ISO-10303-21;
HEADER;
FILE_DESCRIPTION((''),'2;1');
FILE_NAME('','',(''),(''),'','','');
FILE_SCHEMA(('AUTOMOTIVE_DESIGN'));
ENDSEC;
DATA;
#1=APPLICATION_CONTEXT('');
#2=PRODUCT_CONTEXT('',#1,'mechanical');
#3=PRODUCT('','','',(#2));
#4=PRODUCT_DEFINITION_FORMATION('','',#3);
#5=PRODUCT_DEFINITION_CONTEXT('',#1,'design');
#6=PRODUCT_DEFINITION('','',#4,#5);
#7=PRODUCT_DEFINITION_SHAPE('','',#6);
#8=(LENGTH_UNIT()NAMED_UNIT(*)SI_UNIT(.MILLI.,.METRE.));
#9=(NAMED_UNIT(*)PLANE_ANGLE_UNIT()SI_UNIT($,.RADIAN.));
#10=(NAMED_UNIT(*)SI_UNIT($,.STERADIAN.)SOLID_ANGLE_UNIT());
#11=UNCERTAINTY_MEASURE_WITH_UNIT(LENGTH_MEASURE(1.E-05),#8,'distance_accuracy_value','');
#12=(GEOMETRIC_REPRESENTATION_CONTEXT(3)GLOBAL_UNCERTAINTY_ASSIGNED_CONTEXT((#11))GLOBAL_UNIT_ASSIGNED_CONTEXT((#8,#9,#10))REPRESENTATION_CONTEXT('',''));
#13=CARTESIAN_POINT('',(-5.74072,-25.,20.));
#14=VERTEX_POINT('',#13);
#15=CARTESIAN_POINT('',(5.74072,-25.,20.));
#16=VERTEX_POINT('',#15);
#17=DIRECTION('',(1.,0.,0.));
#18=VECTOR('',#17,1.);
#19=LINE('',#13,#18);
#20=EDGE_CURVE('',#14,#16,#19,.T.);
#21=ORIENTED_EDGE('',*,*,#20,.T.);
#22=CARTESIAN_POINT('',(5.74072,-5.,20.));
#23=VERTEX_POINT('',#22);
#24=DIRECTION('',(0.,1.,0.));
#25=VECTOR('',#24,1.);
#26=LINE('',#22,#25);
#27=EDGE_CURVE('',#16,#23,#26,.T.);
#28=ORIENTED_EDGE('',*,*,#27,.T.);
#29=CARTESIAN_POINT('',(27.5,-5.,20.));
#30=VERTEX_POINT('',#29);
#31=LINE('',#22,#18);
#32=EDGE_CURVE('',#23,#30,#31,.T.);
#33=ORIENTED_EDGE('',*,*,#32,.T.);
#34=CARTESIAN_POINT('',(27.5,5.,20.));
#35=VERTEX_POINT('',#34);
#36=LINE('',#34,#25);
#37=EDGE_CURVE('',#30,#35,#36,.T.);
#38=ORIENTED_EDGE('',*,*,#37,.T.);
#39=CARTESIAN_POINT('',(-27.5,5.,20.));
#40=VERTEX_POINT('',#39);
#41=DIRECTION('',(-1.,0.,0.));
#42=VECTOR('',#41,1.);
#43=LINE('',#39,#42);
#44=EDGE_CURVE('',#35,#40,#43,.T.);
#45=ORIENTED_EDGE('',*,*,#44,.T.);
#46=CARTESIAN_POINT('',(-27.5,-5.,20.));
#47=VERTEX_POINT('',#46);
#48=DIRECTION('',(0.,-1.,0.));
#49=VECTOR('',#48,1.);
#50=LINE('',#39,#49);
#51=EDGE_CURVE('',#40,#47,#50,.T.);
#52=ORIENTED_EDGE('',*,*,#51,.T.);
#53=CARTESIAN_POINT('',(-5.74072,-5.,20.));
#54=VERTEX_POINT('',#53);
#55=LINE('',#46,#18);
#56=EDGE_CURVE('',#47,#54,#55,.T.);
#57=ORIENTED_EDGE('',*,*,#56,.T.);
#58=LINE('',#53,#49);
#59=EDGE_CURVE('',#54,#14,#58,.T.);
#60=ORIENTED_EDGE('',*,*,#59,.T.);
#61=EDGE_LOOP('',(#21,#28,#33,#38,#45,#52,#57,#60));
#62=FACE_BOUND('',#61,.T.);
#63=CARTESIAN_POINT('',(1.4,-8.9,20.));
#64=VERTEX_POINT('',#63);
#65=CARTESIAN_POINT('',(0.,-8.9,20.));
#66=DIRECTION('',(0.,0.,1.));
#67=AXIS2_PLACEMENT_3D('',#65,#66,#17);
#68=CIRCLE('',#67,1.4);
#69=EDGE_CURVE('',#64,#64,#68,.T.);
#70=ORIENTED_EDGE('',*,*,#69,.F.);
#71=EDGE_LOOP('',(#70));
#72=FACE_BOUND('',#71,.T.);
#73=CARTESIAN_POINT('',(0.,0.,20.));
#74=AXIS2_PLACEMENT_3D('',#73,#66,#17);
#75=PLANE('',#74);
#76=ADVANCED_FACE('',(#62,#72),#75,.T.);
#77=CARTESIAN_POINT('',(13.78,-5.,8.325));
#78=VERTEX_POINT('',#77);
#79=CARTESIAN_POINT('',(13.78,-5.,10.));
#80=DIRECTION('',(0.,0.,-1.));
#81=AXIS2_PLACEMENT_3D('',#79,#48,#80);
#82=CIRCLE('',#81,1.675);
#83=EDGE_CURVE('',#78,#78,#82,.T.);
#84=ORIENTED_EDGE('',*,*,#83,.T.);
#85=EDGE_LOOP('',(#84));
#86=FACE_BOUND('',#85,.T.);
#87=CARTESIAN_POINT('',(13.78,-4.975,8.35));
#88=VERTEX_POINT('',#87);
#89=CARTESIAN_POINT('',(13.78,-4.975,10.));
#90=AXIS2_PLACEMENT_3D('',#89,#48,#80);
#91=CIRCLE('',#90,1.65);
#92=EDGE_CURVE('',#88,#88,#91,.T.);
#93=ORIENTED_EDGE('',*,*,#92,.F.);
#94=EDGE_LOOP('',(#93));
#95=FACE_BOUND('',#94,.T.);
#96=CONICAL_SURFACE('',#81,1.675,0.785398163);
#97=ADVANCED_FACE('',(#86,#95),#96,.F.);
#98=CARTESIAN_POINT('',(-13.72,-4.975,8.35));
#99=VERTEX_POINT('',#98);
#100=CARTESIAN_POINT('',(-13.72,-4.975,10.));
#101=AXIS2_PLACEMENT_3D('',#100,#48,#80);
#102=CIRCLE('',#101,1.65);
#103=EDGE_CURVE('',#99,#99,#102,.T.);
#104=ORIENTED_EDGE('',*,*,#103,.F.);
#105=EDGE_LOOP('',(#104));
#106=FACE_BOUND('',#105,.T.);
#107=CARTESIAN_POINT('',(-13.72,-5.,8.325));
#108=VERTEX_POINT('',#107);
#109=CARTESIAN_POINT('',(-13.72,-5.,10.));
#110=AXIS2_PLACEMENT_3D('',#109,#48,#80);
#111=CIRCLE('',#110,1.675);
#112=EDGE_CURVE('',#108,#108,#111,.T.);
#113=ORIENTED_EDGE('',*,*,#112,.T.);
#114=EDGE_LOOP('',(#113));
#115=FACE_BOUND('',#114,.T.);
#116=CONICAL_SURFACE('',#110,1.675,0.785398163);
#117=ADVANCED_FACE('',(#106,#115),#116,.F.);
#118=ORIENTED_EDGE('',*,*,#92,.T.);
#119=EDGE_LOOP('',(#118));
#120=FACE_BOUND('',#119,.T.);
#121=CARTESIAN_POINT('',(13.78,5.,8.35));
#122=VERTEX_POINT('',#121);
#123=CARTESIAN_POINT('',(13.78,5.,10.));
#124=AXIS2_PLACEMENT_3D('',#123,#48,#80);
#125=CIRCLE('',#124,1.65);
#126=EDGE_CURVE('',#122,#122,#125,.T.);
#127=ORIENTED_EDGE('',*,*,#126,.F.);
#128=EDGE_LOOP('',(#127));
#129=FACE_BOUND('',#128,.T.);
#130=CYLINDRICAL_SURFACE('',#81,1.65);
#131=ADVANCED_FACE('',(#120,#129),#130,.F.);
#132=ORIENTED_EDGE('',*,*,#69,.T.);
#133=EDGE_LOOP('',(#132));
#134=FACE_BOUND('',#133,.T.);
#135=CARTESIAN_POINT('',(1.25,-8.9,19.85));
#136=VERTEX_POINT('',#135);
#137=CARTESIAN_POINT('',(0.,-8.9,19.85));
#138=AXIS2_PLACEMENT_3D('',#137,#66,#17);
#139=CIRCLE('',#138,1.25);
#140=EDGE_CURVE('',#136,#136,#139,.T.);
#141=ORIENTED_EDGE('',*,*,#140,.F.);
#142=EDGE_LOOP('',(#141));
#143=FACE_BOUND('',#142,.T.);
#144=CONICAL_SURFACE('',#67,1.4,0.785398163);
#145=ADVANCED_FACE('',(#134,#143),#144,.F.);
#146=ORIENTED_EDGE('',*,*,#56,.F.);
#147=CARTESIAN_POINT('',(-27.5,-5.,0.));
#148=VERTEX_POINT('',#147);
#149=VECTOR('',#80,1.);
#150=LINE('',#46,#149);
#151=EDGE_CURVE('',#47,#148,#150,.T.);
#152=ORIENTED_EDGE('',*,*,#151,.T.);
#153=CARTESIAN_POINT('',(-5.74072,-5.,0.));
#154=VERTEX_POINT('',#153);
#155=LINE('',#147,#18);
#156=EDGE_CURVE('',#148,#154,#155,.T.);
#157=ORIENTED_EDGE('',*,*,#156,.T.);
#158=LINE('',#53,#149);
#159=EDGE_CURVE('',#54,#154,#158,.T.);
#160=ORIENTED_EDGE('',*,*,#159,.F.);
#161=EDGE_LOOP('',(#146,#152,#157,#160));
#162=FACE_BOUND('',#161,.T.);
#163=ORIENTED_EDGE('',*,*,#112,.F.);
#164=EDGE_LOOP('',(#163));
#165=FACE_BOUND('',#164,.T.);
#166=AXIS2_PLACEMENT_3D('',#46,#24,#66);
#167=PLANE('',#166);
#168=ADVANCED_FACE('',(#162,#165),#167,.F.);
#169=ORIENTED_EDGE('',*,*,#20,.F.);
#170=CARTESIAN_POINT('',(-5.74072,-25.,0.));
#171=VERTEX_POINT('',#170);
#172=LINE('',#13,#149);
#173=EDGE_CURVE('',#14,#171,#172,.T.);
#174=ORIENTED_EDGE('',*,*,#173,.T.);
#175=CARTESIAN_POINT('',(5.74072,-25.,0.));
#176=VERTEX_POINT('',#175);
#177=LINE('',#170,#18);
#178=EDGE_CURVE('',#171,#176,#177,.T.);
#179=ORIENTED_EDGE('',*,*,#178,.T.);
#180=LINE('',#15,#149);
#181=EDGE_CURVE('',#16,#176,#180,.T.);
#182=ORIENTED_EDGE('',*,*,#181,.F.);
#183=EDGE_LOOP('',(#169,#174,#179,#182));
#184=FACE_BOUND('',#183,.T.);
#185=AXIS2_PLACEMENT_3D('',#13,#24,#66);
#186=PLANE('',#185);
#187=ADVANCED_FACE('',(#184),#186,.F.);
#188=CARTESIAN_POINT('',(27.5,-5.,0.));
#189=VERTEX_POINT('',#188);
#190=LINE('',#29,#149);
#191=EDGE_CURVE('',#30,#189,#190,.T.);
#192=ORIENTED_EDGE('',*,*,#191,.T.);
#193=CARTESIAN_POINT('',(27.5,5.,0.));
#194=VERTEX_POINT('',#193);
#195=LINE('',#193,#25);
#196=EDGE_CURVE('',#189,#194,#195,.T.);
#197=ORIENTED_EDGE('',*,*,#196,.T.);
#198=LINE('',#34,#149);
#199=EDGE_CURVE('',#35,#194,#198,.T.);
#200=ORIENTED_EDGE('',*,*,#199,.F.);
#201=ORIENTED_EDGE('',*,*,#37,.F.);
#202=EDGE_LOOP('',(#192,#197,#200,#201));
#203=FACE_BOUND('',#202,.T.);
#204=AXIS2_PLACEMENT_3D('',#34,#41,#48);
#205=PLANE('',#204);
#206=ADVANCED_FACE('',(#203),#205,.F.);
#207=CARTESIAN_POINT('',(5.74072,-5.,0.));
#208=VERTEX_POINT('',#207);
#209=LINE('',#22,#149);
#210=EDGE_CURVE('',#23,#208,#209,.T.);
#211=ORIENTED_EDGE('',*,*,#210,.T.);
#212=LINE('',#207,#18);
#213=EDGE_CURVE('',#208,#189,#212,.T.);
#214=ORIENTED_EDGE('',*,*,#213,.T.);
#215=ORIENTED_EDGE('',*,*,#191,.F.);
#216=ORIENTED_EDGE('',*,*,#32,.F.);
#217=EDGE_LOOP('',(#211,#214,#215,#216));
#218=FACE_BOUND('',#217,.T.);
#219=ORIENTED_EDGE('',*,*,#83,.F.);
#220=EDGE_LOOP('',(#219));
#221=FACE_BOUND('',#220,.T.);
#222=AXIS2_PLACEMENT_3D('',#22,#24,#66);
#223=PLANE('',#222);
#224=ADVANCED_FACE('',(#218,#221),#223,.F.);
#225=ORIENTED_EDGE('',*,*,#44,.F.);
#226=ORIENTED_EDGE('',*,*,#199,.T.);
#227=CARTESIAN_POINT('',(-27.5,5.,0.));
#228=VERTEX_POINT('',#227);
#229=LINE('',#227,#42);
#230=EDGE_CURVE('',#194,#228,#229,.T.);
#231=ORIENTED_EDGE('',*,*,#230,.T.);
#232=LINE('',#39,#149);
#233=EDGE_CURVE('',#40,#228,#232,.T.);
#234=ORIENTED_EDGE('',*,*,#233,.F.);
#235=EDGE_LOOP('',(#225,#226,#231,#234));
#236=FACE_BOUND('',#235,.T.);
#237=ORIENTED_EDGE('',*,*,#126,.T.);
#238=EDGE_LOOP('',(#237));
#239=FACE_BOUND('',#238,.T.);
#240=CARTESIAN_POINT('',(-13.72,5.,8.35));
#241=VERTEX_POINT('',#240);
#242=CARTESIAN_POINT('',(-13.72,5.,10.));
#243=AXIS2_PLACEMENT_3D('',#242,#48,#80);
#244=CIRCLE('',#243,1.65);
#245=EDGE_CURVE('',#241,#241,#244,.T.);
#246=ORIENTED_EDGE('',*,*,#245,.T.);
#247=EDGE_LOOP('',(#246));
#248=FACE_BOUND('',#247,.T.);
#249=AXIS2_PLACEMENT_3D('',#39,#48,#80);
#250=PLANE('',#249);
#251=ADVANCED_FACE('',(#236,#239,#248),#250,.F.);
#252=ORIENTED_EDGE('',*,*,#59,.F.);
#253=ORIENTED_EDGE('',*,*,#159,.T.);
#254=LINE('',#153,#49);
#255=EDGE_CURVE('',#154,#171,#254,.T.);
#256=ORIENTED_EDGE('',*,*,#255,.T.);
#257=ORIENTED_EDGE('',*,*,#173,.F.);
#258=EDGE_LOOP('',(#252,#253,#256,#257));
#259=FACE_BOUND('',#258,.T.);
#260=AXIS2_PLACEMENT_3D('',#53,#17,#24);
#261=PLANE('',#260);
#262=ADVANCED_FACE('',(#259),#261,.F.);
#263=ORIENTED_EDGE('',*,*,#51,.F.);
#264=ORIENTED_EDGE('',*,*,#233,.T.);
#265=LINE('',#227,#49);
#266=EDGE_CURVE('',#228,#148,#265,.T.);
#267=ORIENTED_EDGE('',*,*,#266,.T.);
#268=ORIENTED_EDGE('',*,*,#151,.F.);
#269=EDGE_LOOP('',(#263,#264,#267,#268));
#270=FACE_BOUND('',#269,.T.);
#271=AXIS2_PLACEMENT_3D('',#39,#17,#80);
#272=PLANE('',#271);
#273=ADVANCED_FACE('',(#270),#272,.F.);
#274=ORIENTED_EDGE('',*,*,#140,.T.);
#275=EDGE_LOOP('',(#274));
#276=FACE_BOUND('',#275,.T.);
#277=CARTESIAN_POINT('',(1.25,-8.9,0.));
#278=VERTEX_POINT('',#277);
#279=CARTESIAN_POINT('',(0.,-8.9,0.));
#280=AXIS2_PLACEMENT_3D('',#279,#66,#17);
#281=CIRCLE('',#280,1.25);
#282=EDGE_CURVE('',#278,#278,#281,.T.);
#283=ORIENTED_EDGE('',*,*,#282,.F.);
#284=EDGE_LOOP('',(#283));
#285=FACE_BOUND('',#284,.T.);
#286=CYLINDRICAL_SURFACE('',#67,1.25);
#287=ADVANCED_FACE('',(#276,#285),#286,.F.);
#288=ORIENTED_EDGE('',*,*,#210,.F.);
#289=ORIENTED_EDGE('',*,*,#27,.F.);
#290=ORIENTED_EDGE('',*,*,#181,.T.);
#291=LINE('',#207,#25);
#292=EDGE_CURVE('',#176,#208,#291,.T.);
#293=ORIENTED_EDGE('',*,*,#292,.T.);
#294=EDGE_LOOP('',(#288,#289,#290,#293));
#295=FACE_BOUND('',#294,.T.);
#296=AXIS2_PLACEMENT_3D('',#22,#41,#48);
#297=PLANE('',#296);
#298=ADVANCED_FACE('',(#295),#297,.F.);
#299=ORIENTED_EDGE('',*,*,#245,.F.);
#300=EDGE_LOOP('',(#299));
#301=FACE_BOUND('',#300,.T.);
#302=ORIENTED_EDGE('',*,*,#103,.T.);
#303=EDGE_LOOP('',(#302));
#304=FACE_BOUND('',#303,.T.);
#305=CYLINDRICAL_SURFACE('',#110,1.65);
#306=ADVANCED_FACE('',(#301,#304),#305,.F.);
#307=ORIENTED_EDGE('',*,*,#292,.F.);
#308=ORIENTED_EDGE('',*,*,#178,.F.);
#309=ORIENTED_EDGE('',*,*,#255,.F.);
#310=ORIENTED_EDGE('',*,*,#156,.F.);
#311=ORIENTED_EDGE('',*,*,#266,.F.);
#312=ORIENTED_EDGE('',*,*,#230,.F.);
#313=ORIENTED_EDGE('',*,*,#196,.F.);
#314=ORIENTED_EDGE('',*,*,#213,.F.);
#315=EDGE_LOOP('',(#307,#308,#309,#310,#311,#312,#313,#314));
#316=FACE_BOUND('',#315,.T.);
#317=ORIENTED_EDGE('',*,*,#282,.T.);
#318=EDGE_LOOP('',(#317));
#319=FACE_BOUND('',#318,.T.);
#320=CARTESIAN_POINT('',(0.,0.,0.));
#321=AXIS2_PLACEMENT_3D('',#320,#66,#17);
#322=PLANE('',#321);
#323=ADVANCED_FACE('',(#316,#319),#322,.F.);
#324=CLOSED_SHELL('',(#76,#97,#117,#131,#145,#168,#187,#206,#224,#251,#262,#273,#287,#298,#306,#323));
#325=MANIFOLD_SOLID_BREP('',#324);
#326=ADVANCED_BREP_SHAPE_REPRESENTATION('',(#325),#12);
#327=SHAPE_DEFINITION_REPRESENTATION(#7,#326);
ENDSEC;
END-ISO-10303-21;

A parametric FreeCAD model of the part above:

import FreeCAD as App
import Part
import Sketcher
from FreeCAD import Vector
Q = App.Units.Quantity


def add_polygon(sketch, points):
    """Adds a closed chain of lines whose ends are joined by coincident constraints."""
    first, n = sketch.GeometryCount, len(points)
    for a, b in zip(points, points[1:] + points[:1]):
        sketch.addGeometry(Part.LineSegment(App.Vector(*a, 0), App.Vector(*b, 0)), False)
    for i in range(n):
        sketch.addConstraint(Sketcher.Constraint("Coincident", first + i, 2, first + (i + 1) % n, 1))

doc = App.newDocument("Part")
body = doc.addObject("PartDesign::Body", "Body")

sketch1 = doc.addObject("Sketcher::SketchObject", "Sketch")
body.addObject(sketch1)
sketch1.AttachmentSupport = (doc.XY_Plane, [""])
sketch1.MapMode = "FlatFace"
add_polygon(sketch1, [(5.74072, -5), (27.5, -5), (27.5, 5), (-27.5, 5), (-27.5, -5), (-5.74072, -5), (-5.74072, -25), (5.74072, -25)])
sketch1.addConstraint(Sketcher.Constraint("Horizontal", 0))
sketch1.addConstraint(Sketcher.Constraint("Vertical", 1))
sketch1.addConstraint(Sketcher.Constraint("Horizontal", 2))
sketch1.addConstraint(Sketcher.Constraint("Vertical", 3))
sketch1.addConstraint(Sketcher.Constraint("Horizontal", 4))
sketch1.addConstraint(Sketcher.Constraint("Vertical", 5))
sketch1.addConstraint(Sketcher.Constraint("Horizontal", 6))
sketch1.addConstraint(Sketcher.Constraint("Vertical", 7))
sketch1.addConstraint(Sketcher.Constraint("Symmetric", 0, 2, 2, 2, -1, 1))
sketch1.addConstraint(Sketcher.Constraint("Symmetric", 4, 2, 7, 2, -2))
sketch1.addConstraint(Sketcher.Constraint("DistanceX", 2, 2, 2, 1, Q("55 mm")))
sketch1.addConstraint(Sketcher.Constraint("DistanceY", 1, 1, 1, 2, Q("10 mm")))
sketch1.addConstraint(Sketcher.Constraint("DistanceY", 5, 2, 5, 1, Q("20 mm")))
sketch1.addConstraint(Sketcher.Constraint("DistanceX", 0, 1, 0, 2, Q("21.75928 mm")))
pad1 = doc.addObject("PartDesign::Pad", "Pad")
body.addObject(pad1)
pad1.Profile = sketch1
pad1.Length = 20

sketch2 = doc.addObject("Sketcher::SketchObject", "Sketch001")
body.addObject(sketch2)
sketch2.AttachmentSupport = (doc.XY_Plane, [""])
sketch2.MapMode = "FlatFace"
sketch2.AttachmentOffset = App.Placement(Vector(0, 0, 20), App.Rotation())
sketch2.addGeometry(Part.Circle(Vector(0, -8.9, 0), Vector(0, 0, 1), 1.25), False)
sketch2.addConstraint(Sketcher.Constraint("PointOnObject", 0, 3, -2))
sketch2.addConstraint(Sketcher.Constraint("Diameter", 0, Q("2.5 mm")))
sketch2.addConstraint(Sketcher.Constraint("DistanceY", 0, 3, -1, 1, Q("8.9 mm")))
doc.recompute()
hole = doc.addObject("PartDesign::Hole", "Hole")
body.addObject(hole)
hole.Profile = sketch2
hole.ThreadType = "None"
hole.Diameter = 2.5
hole.DepthType = "ThroughAll"
hole.HoleCutType = "Countersink"
hole.HoleCutDiameter = 2.8
hole.HoleCutCountersinkAngle = 90

sketch3 = doc.addObject("Sketcher::SketchObject", "Sketch002")
body.addObject(sketch3)
sketch3.AttachmentSupport = (doc.XZ_Plane, [""])
sketch3.MapMode = "FlatFace"
sketch3.AttachmentOffset = App.Placement(Vector(0, 0, 5), App.Rotation())
sketch3.addGeometry(Part.Circle(Vector(13.78, 10, 0), Vector(0, 0, 1), 1.65), False)
sketch3.addGeometry(Part.Circle(Vector(-13.72, 10, 0), Vector(0, 0, 1), 1.65), False)
sketch3.addConstraint(Sketcher.Constraint("Equal", 0, 1))
sketch3.addConstraint(Sketcher.Constraint("Horizontal", 0, 3, 1, 3))
sketch3.addConstraint(Sketcher.Constraint("Diameter", 0, Q("3.3 mm")))
sketch3.addConstraint(Sketcher.Constraint("DistanceY", -1, 1, 0, 3, Q("10 mm")))
sketch3.addConstraint(Sketcher.Constraint("DistanceX", 1, 3, 0, 3, Q("27.5 mm")))
sketch3.addConstraint(Sketcher.Constraint("DistanceX", -1, 1, 0, 3, Q("13.78 mm")))
doc.recompute()
hole2 = doc.addObject("PartDesign::Hole", "Hole001")
body.addObject(hole2)
hole2.Profile = sketch3
hole2.ThreadType = "None"
hole2.Diameter = 3.3
hole2.DepthType = "ThroughAll"
hole2.HoleCutType = "Countersink"
hole2.HoleCutDiameter = 3.35
hole2.HoleCutCountersinkAngle = 90

doc.recompute()
